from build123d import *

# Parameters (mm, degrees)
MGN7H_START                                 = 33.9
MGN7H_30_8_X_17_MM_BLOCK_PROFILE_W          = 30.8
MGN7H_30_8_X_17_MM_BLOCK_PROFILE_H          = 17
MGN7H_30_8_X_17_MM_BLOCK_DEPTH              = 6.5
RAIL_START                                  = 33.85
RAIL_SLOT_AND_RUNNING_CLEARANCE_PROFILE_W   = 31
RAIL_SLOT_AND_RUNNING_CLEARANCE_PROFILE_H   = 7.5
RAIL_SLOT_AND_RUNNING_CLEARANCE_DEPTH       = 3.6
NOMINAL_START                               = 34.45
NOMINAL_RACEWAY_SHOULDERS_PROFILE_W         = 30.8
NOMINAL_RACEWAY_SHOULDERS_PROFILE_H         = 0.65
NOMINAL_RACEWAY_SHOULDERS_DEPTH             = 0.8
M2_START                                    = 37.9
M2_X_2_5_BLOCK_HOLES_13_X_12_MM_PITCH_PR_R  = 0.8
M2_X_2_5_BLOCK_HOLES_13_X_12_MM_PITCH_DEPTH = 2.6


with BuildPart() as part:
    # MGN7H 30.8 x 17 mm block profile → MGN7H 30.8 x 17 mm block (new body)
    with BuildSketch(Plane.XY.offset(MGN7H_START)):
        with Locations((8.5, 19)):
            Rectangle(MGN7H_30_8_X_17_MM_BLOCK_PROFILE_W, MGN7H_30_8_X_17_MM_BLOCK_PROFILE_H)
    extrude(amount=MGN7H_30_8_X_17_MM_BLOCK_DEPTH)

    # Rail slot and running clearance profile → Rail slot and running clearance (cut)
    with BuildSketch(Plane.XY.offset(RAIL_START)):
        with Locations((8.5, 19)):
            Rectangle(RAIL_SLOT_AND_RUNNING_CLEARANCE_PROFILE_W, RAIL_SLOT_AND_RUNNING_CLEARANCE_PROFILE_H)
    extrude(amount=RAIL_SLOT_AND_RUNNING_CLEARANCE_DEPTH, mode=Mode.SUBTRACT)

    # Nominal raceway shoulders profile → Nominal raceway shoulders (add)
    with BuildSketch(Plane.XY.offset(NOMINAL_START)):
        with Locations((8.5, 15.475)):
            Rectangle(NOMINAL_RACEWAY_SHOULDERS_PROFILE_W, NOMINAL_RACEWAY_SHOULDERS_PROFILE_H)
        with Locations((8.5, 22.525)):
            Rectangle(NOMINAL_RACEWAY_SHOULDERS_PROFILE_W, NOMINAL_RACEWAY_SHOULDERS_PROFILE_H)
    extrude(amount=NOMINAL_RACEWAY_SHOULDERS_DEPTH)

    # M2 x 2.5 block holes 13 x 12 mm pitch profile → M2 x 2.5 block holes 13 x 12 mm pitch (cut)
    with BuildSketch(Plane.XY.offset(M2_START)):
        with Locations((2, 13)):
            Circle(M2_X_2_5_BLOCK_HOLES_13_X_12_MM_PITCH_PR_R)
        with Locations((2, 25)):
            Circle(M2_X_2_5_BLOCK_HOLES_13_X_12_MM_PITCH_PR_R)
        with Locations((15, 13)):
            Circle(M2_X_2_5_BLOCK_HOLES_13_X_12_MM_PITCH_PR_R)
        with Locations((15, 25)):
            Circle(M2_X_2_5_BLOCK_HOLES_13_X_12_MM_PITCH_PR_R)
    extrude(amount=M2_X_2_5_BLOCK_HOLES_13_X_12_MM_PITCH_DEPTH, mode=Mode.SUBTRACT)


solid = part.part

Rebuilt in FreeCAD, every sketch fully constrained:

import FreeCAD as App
import Part
import Sketcher
from FreeCAD import Vector


def add_polygon(sketch, points):
    """Adds a closed chain of lines whose ends are joined by coincident constraints."""
    first, n = sketch.GeometryCount, len(points)
    for a, b in zip(points, points[1:] + points[:1]):
        sketch.addGeometry(Part.LineSegment(App.Vector(*a, 0), App.Vector(*b, 0)), False)
    for i in range(n):
        sketch.addConstraint(Sketcher.Constraint("Coincident", first + i, 2, first + (i + 1) % n, 1))

doc = App.newDocument("Part")
body = doc.addObject("PartDesign::Body", "Body")

# Sketch on XY plane
sketch1 = body.newObject("Sketcher::SketchObject", "Sketch")
sketch1.AttachmentSupport = (doc.getObject("XY_Plane"), [""])
sketch1.MapMode = "FlatFace"
sketch1.AttachmentOffset = App.Placement(Vector(0, 0, 33.9), App.Rotation())
add_polygon(sketch1, [(-7, 28), (-7, 10), (24, 10), (24, 28)])  # lines 0-3
sketch1.addConstraint([
    Sketcher.Constraint("Vertical", 0),
    Sketcher.Constraint("Horizontal", 1),
    Sketcher.Constraint("Vertical", 2),
    Sketcher.Constraint("Horizontal", 3),
    Sketcher.Constraint("DistanceY", 0, 2, 0, 1, 17.0),
    Sketcher.Constraint("DistanceX", 1, 1, 1, 2, 30.8),
    Sketcher.Constraint("DistanceX", 0, 2, -1, 1, 6.9),
    Sketcher.Constraint("DistanceY", -1, 1, 0, 2, 10.5),
])
pad1 = body.newObject("PartDesign::Pad", "Pad")
pad1.Profile = sketch1
pad1.Length = 6.5

# Sketch on XY plane
sketch2 = body.newObject("Sketcher::SketchObject", "Sketch001")
sketch2.AttachmentSupport = (doc.getObject("XY_Plane"), [""])
sketch2.MapMode = "FlatFace"
sketch2.AttachmentOffset = App.Placement(Vector(0, 0, 33.85), App.Rotation())
add_polygon(sketch2, [(-7, 23), (-7, 15), (24, 15), (24, 23)])  # lines 0-3
sketch2.addConstraint([
    Sketcher.Constraint("Vertical", 0),
    Sketcher.Constraint("Horizontal", 1),
    Sketcher.Constraint("Vertical", 2),
    Sketcher.Constraint("Horizontal", 3),
    Sketcher.Constraint("DistanceX", 1, 1, 1, 2, 31.0),
    Sketcher.Constraint("DistanceY", 0, 2, 0, 1, 7.5),
    Sketcher.Constraint("DistanceX", 0, 2, -1, 1, 7.0),
    Sketcher.Constraint("DistanceY", -1, 1, 0, 2, 15.25),
])
pocket1 = body.newObject("PartDesign::Pocket", "Pocket")
pocket1.Profile = sketch2
pocket1.Length = 3.6
pocket1.Reversed = True

# Sketch on XY plane
sketch3 = body.newObject("Sketcher::SketchObject", "Sketch002")
sketch3.AttachmentSupport = (doc.getObject("XY_Plane"), [""])
sketch3.MapMode = "FlatFace"
sketch3.AttachmentOffset = App.Placement(Vector(0, 0, 34.45), App.Rotation())
add_polygon(sketch3, [(-6.9, 15.8), (-6.9, 15.2), (23.9, 15.2), (23.9, 15.8)])  # lines 0-3
add_polygon(sketch3, [(-6.9, 22.9), (-6.9, 22.2), (23.9, 22.2), (23.9, 22.9)])  # lines 4-7
sketch3.addConstraint([
    Sketcher.Constraint("Vertical", 0),
    Sketcher.Constraint("Horizontal", 1),
    Sketcher.Constraint("Vertical", 2),
    Sketcher.Constraint("Horizontal", 3),
    Sketcher.Constraint("Vertical", 4),
    Sketcher.Constraint("Horizontal", 5),
    Sketcher.Constraint("Vertical", 6),
    Sketcher.Constraint("Horizontal", 7),
    Sketcher.Constraint("Vertical", 3, 2, 4, 2),
    Sketcher.Constraint("Vertical", 2, 2, 5, 2),
    Sketcher.Constraint("Equal", 2, 4),
    Sketcher.Constraint("DistanceX", 1, 1, 1, 2, 30.8),
    Sketcher.Constraint("DistanceY", 0, 2, 0, 1, 0.65),
    Sketcher.Constraint("DistanceX", 0, 2, -1, 1, 6.9),
    Sketcher.Constraint("DistanceY", -1, 1, 2, 2, 15.8),
    Sketcher.Constraint("DistanceY", -1, 1, 4, 2, 22.2),
])
pad2 = body.newObject("PartDesign::Pad", "Pad001")
pad2.Profile = sketch3
pad2.Length = 0.8

# Sketch on XY plane
sketch4 = body.newObject("Sketcher::SketchObject", "Sketch003")
sketch4.AttachmentSupport = (doc.getObject("XY_Plane"), [""])
sketch4.MapMode = "FlatFace"
sketch4.AttachmentOffset = App.Placement(Vector(0, 0, 37.9), App.Rotation())
sketch4.addGeometry([
    Part.Circle(Vector(2, 13, 0), Vector(0, 0, 1), 0.8),
    Part.Circle(Vector(2, 25, 0), Vector(0, 0, 1), 0.8),
    Part.Circle(Vector(15, 13, 0), Vector(0, 0, 1), 0.8),
    Part.Circle(Vector(15, 25, 0), Vector(0, 0, 1), 0.8),
], False)
sketch4.addConstraint([
    Sketcher.Constraint("Equal", 0, 1),
    Sketcher.Constraint("Equal", 1, 2),
    Sketcher.Constraint("Equal", 2, 3),
    Sketcher.Constraint("Horizontal", 0, 3, 2, 3),
    Sketcher.Constraint("Horizontal", 1, 3, 3, 3),
    Sketcher.Constraint("Vertical", 0, 3, 1, 3),
    Sketcher.Constraint("Vertical", 2, 3, 3, 3),
    Sketcher.Constraint("Diameter", 0, 1.6),
    Sketcher.Constraint("DistanceX", -1, 1, 0, 3, 2.0),
    Sketcher.Constraint("DistanceY", -1, 1, 0, 3, 13.0),
    Sketcher.Constraint("DistanceY", -1, 1, 1, 3, 25.0),
    Sketcher.Constraint("DistanceX", -1, 1, 2, 3, 15.0),
])
pocket2 = body.newObject("PartDesign::Pocket", "Pocket001")
pocket2.Profile = sketch4
pocket2.Length = 2.6
pocket2.Reversed = True

doc.recompute()
